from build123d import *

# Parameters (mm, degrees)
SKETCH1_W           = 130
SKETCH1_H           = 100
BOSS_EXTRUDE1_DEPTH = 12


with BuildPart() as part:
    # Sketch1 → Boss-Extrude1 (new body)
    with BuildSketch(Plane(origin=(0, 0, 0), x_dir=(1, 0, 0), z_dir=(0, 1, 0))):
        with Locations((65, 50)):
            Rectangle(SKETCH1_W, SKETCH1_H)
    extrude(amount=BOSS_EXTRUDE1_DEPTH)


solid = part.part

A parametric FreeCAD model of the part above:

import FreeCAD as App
import Part
import Sketcher
Q = App.Units.Quantity

doc = App.newDocument("Part")
body = doc.addObject("PartDesign::Body", "Body")

# Sketch on XZ plane
sketch1 = body.newObject("Sketcher::SketchObject", "Sketch")
sketch1.AttachmentSupport = (doc.getObject("XZ_Plane"), [""])
sketch1.MapMode = "FlatFace"
sketch1.addGeometry(Part.LineSegment(App.Vector(0, -100, 0), App.Vector(0, 0, 0)), False)
sketch1.addGeometry(Part.LineSegment(App.Vector(0, 0, 0), App.Vector(130, 0, 0)), False)
sketch1.addGeometry(Part.LineSegment(App.Vector(130, 0, 0), App.Vector(130, -100, 0)), False)
sketch1.addGeometry(Part.LineSegment(App.Vector(130, -100, 0), App.Vector(0, -100, 0)), False)
sketch1.addConstraint(Sketcher.Constraint("Coincident", 0, 2, 1, 1))
sketch1.addConstraint(Sketcher.Constraint("Coincident", 1, 2, 2, 1))
sketch1.addConstraint(Sketcher.Constraint("Coincident", 2, 2, 3, 1))
sketch1.addConstraint(Sketcher.Constraint("Coincident", 3, 2, 0, 1))
sketch1.addConstraint(Sketcher.Constraint("Vertical", 0))
sketch1.addConstraint(Sketcher.Constraint("Horizontal", 1))
sketch1.addConstraint(Sketcher.Constraint("Vertical", 2))
sketch1.addConstraint(Sketcher.Constraint("Horizontal", 3))
sketch1.addConstraint(Sketcher.Constraint("Coincident", 0, 2, -1, 1))
sketch1.addConstraint(Sketcher.Constraint("DistanceX", 1, 1, 1, 2, Q("130 mm")))
sketch1.addConstraint(Sketcher.Constraint("DistanceY", 0, 1, 0, 2, Q("100 mm")))
pad1 = body.newObject("PartDesign::Pad", "Pad")
pad1.Profile = sketch1
pad1.Length = 12
pad1.Reversed = True

doc.recompute()
